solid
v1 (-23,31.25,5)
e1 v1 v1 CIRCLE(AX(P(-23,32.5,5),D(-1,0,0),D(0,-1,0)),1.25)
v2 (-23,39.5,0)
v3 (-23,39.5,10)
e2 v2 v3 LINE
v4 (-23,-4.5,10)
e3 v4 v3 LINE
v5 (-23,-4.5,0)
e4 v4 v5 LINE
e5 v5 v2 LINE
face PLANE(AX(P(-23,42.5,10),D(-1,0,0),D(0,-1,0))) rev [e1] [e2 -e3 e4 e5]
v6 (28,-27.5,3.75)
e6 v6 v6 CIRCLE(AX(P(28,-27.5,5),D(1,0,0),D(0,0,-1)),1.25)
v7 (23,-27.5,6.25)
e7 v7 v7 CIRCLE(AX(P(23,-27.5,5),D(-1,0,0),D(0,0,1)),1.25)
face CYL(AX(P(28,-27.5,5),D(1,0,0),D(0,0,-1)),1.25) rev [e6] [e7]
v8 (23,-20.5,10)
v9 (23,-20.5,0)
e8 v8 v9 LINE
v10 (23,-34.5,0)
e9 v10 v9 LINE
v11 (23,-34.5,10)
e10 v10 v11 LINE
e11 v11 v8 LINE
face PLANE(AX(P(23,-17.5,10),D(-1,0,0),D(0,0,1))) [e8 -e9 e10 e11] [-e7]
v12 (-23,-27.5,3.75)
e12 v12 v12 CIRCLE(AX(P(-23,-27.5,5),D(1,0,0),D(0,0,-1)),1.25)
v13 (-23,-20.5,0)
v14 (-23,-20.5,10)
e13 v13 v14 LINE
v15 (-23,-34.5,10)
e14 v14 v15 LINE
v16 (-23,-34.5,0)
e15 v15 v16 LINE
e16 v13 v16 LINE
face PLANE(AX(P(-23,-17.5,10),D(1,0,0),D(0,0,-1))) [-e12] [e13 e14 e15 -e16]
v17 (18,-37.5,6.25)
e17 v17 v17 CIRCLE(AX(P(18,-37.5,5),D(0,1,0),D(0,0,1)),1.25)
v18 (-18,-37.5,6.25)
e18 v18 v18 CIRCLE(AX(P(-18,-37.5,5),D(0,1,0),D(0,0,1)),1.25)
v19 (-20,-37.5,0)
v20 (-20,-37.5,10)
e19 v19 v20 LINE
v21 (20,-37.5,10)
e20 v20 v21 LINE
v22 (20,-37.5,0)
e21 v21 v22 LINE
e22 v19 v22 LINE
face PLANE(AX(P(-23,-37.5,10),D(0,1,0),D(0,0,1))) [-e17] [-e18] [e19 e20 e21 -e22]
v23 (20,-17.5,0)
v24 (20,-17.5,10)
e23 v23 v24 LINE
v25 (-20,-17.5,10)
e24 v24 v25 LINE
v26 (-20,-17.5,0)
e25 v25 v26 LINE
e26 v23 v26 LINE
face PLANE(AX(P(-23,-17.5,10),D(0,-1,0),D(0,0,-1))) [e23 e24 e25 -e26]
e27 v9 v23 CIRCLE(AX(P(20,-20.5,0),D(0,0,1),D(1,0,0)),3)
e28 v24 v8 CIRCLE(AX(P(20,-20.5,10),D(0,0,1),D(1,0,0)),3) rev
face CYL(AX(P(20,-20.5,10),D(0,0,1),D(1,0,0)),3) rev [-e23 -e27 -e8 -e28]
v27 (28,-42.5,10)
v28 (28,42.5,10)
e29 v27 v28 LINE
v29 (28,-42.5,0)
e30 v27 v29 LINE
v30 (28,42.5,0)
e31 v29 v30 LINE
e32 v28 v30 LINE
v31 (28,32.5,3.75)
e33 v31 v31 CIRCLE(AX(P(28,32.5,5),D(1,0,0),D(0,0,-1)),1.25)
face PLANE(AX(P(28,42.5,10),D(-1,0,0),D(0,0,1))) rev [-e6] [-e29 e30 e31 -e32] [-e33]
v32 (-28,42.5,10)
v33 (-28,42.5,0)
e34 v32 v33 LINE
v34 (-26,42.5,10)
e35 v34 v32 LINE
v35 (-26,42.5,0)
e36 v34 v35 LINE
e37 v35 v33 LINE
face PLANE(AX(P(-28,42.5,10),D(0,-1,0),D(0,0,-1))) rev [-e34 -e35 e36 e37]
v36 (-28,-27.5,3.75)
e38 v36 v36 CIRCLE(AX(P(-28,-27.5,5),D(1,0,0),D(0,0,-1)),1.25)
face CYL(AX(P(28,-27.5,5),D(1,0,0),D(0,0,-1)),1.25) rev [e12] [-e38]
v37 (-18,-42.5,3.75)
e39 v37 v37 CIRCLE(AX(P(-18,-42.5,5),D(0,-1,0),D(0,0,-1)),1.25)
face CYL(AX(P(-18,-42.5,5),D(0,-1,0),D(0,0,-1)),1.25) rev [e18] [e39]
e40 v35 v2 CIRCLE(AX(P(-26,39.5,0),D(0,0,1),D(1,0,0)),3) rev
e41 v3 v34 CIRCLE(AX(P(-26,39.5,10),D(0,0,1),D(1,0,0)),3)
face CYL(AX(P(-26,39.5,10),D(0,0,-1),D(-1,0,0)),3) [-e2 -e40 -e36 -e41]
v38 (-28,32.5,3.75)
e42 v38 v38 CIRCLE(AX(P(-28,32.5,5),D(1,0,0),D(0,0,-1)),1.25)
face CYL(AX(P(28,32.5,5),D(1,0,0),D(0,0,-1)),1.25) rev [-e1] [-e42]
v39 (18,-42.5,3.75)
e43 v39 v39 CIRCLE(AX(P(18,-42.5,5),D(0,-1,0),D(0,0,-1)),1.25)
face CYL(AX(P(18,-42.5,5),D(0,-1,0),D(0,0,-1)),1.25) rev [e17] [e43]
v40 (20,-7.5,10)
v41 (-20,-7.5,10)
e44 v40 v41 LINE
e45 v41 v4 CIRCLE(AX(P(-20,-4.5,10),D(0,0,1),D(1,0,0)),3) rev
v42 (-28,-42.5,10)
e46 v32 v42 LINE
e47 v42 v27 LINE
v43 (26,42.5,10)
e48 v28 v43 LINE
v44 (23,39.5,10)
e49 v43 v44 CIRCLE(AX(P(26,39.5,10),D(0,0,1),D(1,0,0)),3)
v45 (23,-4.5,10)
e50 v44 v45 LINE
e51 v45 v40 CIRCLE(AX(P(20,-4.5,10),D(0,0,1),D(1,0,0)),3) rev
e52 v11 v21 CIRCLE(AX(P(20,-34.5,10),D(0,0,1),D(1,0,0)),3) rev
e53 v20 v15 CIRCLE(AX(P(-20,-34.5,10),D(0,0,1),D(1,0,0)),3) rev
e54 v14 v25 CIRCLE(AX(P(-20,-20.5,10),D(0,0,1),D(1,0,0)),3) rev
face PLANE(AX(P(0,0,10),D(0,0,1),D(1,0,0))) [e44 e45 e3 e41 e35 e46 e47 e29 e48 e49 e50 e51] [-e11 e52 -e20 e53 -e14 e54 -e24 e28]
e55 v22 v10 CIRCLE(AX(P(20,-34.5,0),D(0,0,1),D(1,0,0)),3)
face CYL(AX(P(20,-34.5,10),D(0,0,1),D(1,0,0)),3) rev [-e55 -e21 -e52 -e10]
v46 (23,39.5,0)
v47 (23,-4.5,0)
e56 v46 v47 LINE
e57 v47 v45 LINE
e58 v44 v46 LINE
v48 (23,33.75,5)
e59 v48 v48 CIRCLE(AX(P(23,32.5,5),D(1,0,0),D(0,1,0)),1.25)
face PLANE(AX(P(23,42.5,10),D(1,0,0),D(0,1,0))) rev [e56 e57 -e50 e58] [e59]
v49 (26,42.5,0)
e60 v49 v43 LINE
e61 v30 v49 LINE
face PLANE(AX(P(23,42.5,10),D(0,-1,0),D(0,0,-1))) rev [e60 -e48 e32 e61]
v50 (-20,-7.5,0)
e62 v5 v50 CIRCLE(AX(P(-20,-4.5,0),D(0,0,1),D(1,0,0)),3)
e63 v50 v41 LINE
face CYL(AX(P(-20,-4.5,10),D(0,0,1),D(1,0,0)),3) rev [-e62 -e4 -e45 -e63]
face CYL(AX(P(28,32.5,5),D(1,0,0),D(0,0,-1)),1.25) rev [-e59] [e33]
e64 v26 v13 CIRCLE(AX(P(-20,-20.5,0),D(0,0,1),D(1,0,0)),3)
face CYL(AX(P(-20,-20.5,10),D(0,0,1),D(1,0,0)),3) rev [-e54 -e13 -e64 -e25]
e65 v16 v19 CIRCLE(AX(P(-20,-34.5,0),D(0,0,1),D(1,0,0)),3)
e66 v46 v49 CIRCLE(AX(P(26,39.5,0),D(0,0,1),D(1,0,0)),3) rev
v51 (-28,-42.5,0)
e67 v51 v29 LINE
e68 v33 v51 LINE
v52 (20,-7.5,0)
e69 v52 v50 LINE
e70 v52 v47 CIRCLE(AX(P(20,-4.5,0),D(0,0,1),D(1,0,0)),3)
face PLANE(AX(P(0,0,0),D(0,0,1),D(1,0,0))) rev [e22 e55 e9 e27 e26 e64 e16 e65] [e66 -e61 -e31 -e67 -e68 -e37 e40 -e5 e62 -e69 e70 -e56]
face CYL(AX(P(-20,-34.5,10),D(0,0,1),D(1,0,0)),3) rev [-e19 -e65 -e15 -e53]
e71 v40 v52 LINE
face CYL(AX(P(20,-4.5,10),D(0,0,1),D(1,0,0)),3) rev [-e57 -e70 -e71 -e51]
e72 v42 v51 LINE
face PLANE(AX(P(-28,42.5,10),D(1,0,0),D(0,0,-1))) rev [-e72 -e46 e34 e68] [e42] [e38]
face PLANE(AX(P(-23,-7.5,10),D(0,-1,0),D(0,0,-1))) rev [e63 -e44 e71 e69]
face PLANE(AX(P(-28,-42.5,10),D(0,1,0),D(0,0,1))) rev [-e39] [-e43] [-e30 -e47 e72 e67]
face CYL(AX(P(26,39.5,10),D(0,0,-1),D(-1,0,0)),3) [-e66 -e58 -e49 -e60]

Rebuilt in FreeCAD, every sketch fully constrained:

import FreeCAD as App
import Part
import Sketcher

V = App.Vector


def edges_at(feature, points):
    """Names of the edges that pass closest to the given points."""
    edges = feature.Shape.Edges
    near = lambda p: min(range(len(edges)), key=lambda i: edges[i].distToShape(Part.Vertex(*p))[0])
    return sorted({f"Edge{near(p) + 1}" for p in points})

doc = App.newDocument("Part")
params = doc.addObject("Spreadsheet::Sheet", "Params")
for row, (alias, value) in enumerate([
    ("sketch1_width", "5 mm"),
    ("sketch1_width2", "56 mm"),
    ("sketch1_height", "85 mm"),
    ("sketch1_height2", "50 mm"),
    ("sketch1_height3", "20 mm"),
    ("pad1_length", "10 mm"),
    ("fillet_radius", "3 mm"),
    ("sketch2_diameter", "2.5 mm"),
    ("hole_diameter", "2.5 mm"),
    ("hole_depth", "5 mm"),
    ("sketch3_diameter", "2.5 mm"),
    ("hole2_diameter", "2.5 mm"),
], start=1):
    params.set(f"A{row}", alias)
    params.set(f"B{row}", "=" + value)
    params.setAlias(f"B{row}", alias)

body = doc.addObject("PartDesign::Body", "Body")

# Sketch on XY plane
sketch1 = body.newObject("Sketcher::SketchObject", "Sketch")
sketch1.AttachmentSupport = (doc.getObject("XY_Plane"), [""])
sketch1.MapMode = "FlatFace"
sketch1.addGeometry(Part.LineSegment(V(-23, 42, 0), V(-28, 42, 0)), False)
sketch1.addGeometry(Part.LineSegment(V(-28, 42, 0), V(-28, -42, 0)), False)
sketch1.addGeometry(Part.LineSegment(V(-28, -42, 0), V(28, -42, 0)), False)
sketch1.addGeometry(Part.LineSegment(V(28, -42, 0), V(28, 42, 0)), False)
sketch1.addGeometry(Part.LineSegment(V(28, 42, 0), V(23, 42, 0)), False)
sketch1.addGeometry(Part.LineSegment(V(23, 42, 0), V(23, -8, 0)), False)
sketch1.addGeometry(Part.LineSegment(V(23, -8, 0), V(-23, -8, 0)), False)
sketch1.addGeometry(Part.LineSegment(V(-23, -8, 0), V(-23, 42, 0)), False)
sketch1.addGeometry(Part.LineSegment(V(-23, -38, 0), V(-23, -18, 0)), False)
sketch1.addGeometry(Part.LineSegment(V(-23, -18, 0), V(23, -18, 0)), False)
sketch1.addGeometry(Part.LineSegment(V(23, -18, 0), V(23, -38, 0)), False)
sketch1.addGeometry(Part.LineSegment(V(23, -38, 0), V(-23, -38, 0)), False)
sketch1.addConstraint(Sketcher.Constraint("Coincident", 0, 2, 1, 1))
sketch1.addConstraint(Sketcher.Constraint("Coincident", 1, 2, 2, 1))
sketch1.addConstraint(Sketcher.Constraint("Coincident", 2, 2, 3, 1))
sketch1.addConstraint(Sketcher.Constraint("Coincident", 3, 2, 4, 1))
sketch1.addConstraint(Sketcher.Constraint("Coincident", 4, 2, 5, 1))
sketch1.addConstraint(Sketcher.Constraint("Coincident", 5, 2, 6, 1))
sketch1.addConstraint(Sketcher.Constraint("Coincident", 6, 2, 7, 1))
sketch1.addConstraint(Sketcher.Constraint("Coincident", 7, 2, 0, 1))
sketch1.addConstraint(Sketcher.Constraint("Coincident", 8, 2, 9, 1))
sketch1.addConstraint(Sketcher.Constraint("Coincident", 9, 2, 10, 1))
sketch1.addConstraint(Sketcher.Constraint("Coincident", 10, 2, 11, 1))
sketch1.addConstraint(Sketcher.Constraint("Coincident", 11, 2, 8, 1))
sketch1.addConstraint(Sketcher.Constraint("Horizontal", 0))
sketch1.addConstraint(Sketcher.Constraint("Vertical", 1))
sketch1.addConstraint(Sketcher.Constraint("Horizontal", 2))
sketch1.addConstraint(Sketcher.Constraint("Vertical", 3))
sketch1.addConstraint(Sketcher.Constraint("Horizontal", 4))
sketch1.addConstraint(Sketcher.Constraint("Vertical", 5))
sketch1.addConstraint(Sketcher.Constraint("Horizontal", 6))
sketch1.addConstraint(Sketcher.Constraint("Vertical", 7))
sketch1.addConstraint(Sketcher.Constraint("Vertical", 8))
sketch1.addConstraint(Sketcher.Constraint("Horizontal", 9))
sketch1.addConstraint(Sketcher.Constraint("Vertical", 10))
sketch1.addConstraint(Sketcher.Constraint("Horizontal", 11))
sketch1.addConstraint(Sketcher.Constraint("Symmetric", 0, 2, 2, 2, -1, 1))
sketch1.addConstraint(Sketcher.Constraint("Symmetric", 4, 2, 7, 2, -2))
sketch1.addConstraint(Sketcher.Constraint("Vertical", 7, 2, 8, 2))
sketch1.addConstraint(Sketcher.Constraint("Vertical", 5, 2, 9, 2))
sketch1.addConstraint(Sketcher.Constraint("DistanceX", 0, 2, 0, 1, 5.0))
sketch1.addConstraint(Sketcher.Constraint("DistanceX", 2, 1, 2, 2, 56.0))
sketch1.addConstraint(Sketcher.Constraint("DistanceY", 1, 2, 1, 1, 85.0))
sketch1.addConstraint(Sketcher.Constraint("DistanceY", 5, 2, 5, 1, 50.0))
sketch1.addConstraint(Sketcher.Constraint("DistanceY", 8, 1, 8, 2, 20.0))
sketch1.addConstraint(Sketcher.Constraint("DistanceY", 8, 2, 6, 2, 10.0))
sketch1.setExpression("Constraints[28]", "Params.sketch1_width")
sketch1.setExpression("Constraints[29]", "Params.sketch1_width2")
sketch1.setExpression("Constraints[30]", "Params.sketch1_height")
sketch1.setExpression("Constraints[31]", "Params.sketch1_height2")
sketch1.setExpression("Constraints[32]", "Params.sketch1_height3")
pad1 = body.newObject("PartDesign::Pad", "Pad")
pad1.Profile = sketch1
pad1.setExpression("Length", "Params.pad1_length")
doc.recompute()

fillet = body.newObject("PartDesign::Fillet", "Fillet")
fillet.Base = (pad1, edges_at(pad1, [
    (-23, 42.5, 5),
    (-23, -7.5, 5),
    (23, -7.5, 5),
    (23, 42.5, 5),
    (23, -37.5, 5),
    (23, -17.5, 5),
    (-23, -17.5, 5),
    (-23, -37.5, 5),
]))
fillet.setExpression("Radius", "Params.fillet_radius")

# Sketch on XZ plane
sketch2 = body.newObject("Sketcher::SketchObject", "Sketch001")
sketch2.AttachmentSupport = (doc.getObject("XZ_Plane"), [""])
sketch2.MapMode = "FlatFace"
sketch2.AttachmentOffset = App.Placement(V(0, 0, 42.5), App.Rotation())
sketch2.addGeometry(Part.Circle(V(-18, 5, 0), V(0, 0, 1), 1.2), False)
sketch2.addGeometry(Part.Circle(V(18, 5, 0), V(0, 0, 1), 1.2), False)
sketch2.addConstraint(Sketcher.Constraint("Equal", 0, 1))
sketch2.addConstraint(Sketcher.Constraint("Symmetric", 0, 3, 1, 3, -2))
sketch2.addConstraint(Sketcher.Constraint("Diameter", 0, 2.5))
sketch2.addConstraint(Sketcher.Constraint("DistanceX", 0, 3, -1, 1, 18.0))
sketch2.addConstraint(Sketcher.Constraint("DistanceY", -1, 1, 0, 3, 5.0))
sketch2.setExpression("Constraints[2]", "Params.sketch2_diameter")
doc.recompute()
hole = body.newObject("PartDesign::Hole", "Hole")
hole.Profile = sketch2
hole.ThreadType = "None"
hole.setExpression("Diameter", "Params.hole_diameter")
hole.DepthType = "Dimension"
hole.setExpression("Depth", "Params.hole_depth")
hole.DrillPoint = "Flat"

# Sketch on YZ plane
sketch3 = body.newObject("Sketcher::SketchObject", "Sketch002")
sketch3.AttachmentSupport = (doc.getObject("YZ_Plane"), [""])
sketch3.MapMode = "FlatFace"
sketch3.AttachmentOffset = App.Placement(V(0, 0, 28), App.Rotation())
sketch3.addGeometry(Part.Circle(V(32.5, 5, 0), V(0, 0, 1), 1.2), False)
sketch3.addGeometry(Part.Circle(V(-27.5, 5, 0), V(0, 0, 1), 1.2), False)
sketch3.addConstraint(Sketcher.Constraint("Equal", 0, 1))
sketch3.addConstraint(Sketcher.Constraint("Horizontal", 0, 3, 1, 3))
sketch3.addConstraint(Sketcher.Constraint("Diameter", 0, 2.5))
sketch3.addConstraint(Sketcher.Constraint("DistanceY", -1, 1, 0, 3, 5.0))
sketch3.addConstraint(Sketcher.Constraint("DistanceX", 1, 3, 0, 3, 60.0))
sketch3.addConstraint(Sketcher.Constraint("DistanceX", -1, 1, 0, 3, 32.5))
sketch3.setExpression("Constraints[2]", "Params.sketch3_diameter")
doc.recompute()
hole2 = body.newObject("PartDesign::Hole", "Hole001")
hole2.Profile = sketch3
hole2.ThreadType = "None"
hole2.setExpression("Diameter", "Params.hole2_diameter")
hole2.DepthType = "ThroughAll"

doc.recompute()
